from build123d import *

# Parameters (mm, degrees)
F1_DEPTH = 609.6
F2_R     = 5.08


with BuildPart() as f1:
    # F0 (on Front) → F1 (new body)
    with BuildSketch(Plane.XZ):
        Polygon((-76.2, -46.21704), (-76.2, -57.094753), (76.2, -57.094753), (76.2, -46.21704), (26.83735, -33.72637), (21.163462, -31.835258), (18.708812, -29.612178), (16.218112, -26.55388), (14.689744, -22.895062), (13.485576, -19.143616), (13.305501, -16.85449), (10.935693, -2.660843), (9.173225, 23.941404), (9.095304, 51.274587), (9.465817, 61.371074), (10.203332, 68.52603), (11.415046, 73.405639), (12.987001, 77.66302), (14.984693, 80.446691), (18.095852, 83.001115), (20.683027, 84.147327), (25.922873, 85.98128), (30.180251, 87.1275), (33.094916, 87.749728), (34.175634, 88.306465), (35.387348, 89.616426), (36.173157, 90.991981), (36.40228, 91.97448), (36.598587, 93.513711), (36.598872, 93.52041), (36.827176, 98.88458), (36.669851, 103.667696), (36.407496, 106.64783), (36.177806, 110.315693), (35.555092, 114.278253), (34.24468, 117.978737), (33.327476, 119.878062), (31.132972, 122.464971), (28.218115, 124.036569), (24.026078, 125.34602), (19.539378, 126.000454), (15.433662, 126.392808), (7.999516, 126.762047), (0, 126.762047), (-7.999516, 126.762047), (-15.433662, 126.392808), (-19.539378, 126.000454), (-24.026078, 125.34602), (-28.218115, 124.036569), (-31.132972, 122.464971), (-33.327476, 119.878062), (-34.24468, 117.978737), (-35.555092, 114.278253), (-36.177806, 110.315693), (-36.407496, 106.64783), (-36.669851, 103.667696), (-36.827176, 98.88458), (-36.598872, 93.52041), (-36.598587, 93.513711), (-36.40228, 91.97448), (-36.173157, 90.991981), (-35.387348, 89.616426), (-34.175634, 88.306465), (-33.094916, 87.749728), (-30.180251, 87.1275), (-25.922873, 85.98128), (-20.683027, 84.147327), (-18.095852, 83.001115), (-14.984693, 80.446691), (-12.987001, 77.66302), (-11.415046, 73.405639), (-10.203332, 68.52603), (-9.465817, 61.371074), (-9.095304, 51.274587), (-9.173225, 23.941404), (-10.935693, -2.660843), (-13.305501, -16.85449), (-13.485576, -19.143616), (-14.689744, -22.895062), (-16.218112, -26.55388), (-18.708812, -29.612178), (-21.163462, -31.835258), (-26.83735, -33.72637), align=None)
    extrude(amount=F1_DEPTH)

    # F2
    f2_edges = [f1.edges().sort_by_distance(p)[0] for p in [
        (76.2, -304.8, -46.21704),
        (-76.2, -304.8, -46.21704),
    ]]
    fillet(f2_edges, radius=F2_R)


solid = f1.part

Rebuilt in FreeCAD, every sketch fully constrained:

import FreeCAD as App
import Part
import Sketcher
Q = App.Units.Quantity


def edges_at(feature, points):
    """Names of the edges that pass closest to the given points."""
    edges = feature.Shape.Edges
    near = lambda p: min(range(len(edges)), key=lambda i: edges[i].distToShape(Part.Vertex(*p))[0])
    return sorted({f"Edge{near(p) + 1}" for p in points})

doc = App.newDocument("Part")
body = doc.addObject("PartDesign::Body", "Body")

sketch1 = body.newObject("Sketcher::SketchObject", "Sketch")
sketch1.AttachmentSupport = (doc.getObject("XZ_Plane"), [""])
sketch1.MapMode = "FlatFace"
sketch1.addGeometry([
    Part.LineSegment(App.Vector(-76.2, -46.21704, 0), App.Vector(-76.2, -57.094753, 0)),
    Part.LineSegment(App.Vector(-76.2, -57.094753, 0), App.Vector(76.2, -57.094753, 0)),
    Part.LineSegment(App.Vector(76.2, -57.094753, 0), App.Vector(76.2, -46.21704, 0)),
    Part.LineSegment(App.Vector(76.2, -46.21704, 0), App.Vector(26.83735, -33.72637, 0)),
    Part.LineSegment(App.Vector(26.83735, -33.72637, 0), App.Vector(21.163462, -31.835258, 0)),
    Part.LineSegment(App.Vector(21.163462, -31.835258, 0), App.Vector(18.708812, -29.612178, 0)),
    Part.LineSegment(App.Vector(18.708812, -29.612178, 0), App.Vector(16.218112, -26.55388, 0)),
    Part.LineSegment(App.Vector(16.218112, -26.55388, 0), App.Vector(14.689744, -22.895062, 0)),
    Part.LineSegment(App.Vector(14.689744, -22.895062, 0), App.Vector(13.485576, -19.143616, 0)),
    Part.LineSegment(App.Vector(13.485576, -19.143616, 0), App.Vector(13.305501, -16.85449, 0)),
    Part.LineSegment(App.Vector(13.305501, -16.85449, 0), App.Vector(10.935693, -2.660843, 0)),
    Part.LineSegment(App.Vector(10.935693, -2.660843, 0), App.Vector(9.173225, 23.941404, 0)),
    Part.LineSegment(App.Vector(9.173225, 23.941404, 0), App.Vector(9.095304, 51.274587, 0)),
    Part.LineSegment(App.Vector(9.095304, 51.274587, 0), App.Vector(9.465817, 61.371074, 0)),
    Part.LineSegment(App.Vector(9.465817, 61.371074, 0), App.Vector(10.203332, 68.52603, 0)),
    Part.LineSegment(App.Vector(10.203332, 68.52603, 0), App.Vector(11.415046, 73.405639, 0)),
    Part.LineSegment(App.Vector(11.415046, 73.405639, 0), App.Vector(12.987001, 77.66302, 0)),
    Part.LineSegment(App.Vector(12.987001, 77.66302, 0), App.Vector(14.984693, 80.446691, 0)),
    Part.LineSegment(App.Vector(14.984693, 80.446691, 0), App.Vector(18.095852, 83.001115, 0)),
    Part.LineSegment(App.Vector(18.095852, 83.001115, 0), App.Vector(20.683027, 84.147327, 0)),
    Part.LineSegment(App.Vector(20.683027, 84.147327, 0), App.Vector(25.922873, 85.98128, 0)),
    Part.LineSegment(App.Vector(25.922873, 85.98128, 0), App.Vector(30.180251, 87.1275, 0)),
    Part.LineSegment(App.Vector(30.180251, 87.1275, 0), App.Vector(33.094916, 87.749728, 0)),
    Part.LineSegment(App.Vector(33.094916, 87.749728, 0), App.Vector(34.175634, 88.306465, 0)),
    Part.LineSegment(App.Vector(34.175634, 88.306465, 0), App.Vector(35.387348, 89.616426, 0)),
    Part.LineSegment(App.Vector(35.387348, 89.616426, 0), App.Vector(36.173157, 90.991981, 0)),
    Part.LineSegment(App.Vector(36.173157, 90.991981, 0), App.Vector(36.40228, 91.97448, 0)),
    Part.LineSegment(App.Vector(36.40228, 91.97448, 0), App.Vector(36.598587, 93.513711, 0)),
    Part.LineSegment(App.Vector(36.598587, 93.513711, 0), App.Vector(36.598872, 93.52041, 0)),
    Part.LineSegment(App.Vector(36.598872, 93.52041, 0), App.Vector(36.827176, 98.88458, 0)),
    Part.LineSegment(App.Vector(36.827176, 98.88458, 0), App.Vector(36.669851, 103.667696, 0)),
    Part.LineSegment(App.Vector(36.669851, 103.667696, 0), App.Vector(36.407496, 106.64783, 0)),
    Part.LineSegment(App.Vector(36.407496, 106.64783, 0), App.Vector(36.177806, 110.315693, 0)),
    Part.LineSegment(App.Vector(36.177806, 110.315693, 0), App.Vector(35.555092, 114.278253, 0)),
    Part.LineSegment(App.Vector(35.555092, 114.278253, 0), App.Vector(34.24468, 117.978737, 0)),
    Part.LineSegment(App.Vector(34.24468, 117.978737, 0), App.Vector(33.327476, 119.878062, 0)),
    Part.LineSegment(App.Vector(33.327476, 119.878062, 0), App.Vector(31.132972, 122.464971, 0)),
    Part.LineSegment(App.Vector(31.132972, 122.464971, 0), App.Vector(28.218115, 124.036569, 0)),
    Part.LineSegment(App.Vector(28.218115, 124.036569, 0), App.Vector(24.026078, 125.34602, 0)),
    Part.LineSegment(App.Vector(24.026078, 125.34602, 0), App.Vector(19.539378, 126.000454, 0)),
    Part.LineSegment(App.Vector(19.539378, 126.000454, 0), App.Vector(15.433662, 126.392808, 0)),
    Part.LineSegment(App.Vector(15.433662, 126.392808, 0), App.Vector(7.999516, 126.762047, 0)),
    Part.LineSegment(App.Vector(7.999516, 126.762047, 0), App.Vector(-7.999516, 126.762047, 0)),
    Part.LineSegment(App.Vector(-7.999516, 126.762047, 0), App.Vector(-15.433662, 126.392808, 0)),
    Part.LineSegment(App.Vector(-15.433662, 126.392808, 0), App.Vector(-19.539378, 126.000454, 0)),
    Part.LineSegment(App.Vector(-19.539378, 126.000454, 0), App.Vector(-24.026078, 125.34602, 0)),
    Part.LineSegment(App.Vector(-24.026078, 125.34602, 0), App.Vector(-28.218115, 124.036569, 0)),
    Part.LineSegment(App.Vector(-28.218115, 124.036569, 0), App.Vector(-31.132972, 122.464971, 0)),
    Part.LineSegment(App.Vector(-31.132972, 122.464971, 0), App.Vector(-33.327476, 119.878062, 0)),
    Part.LineSegment(App.Vector(-33.327476, 119.878062, 0), App.Vector(-34.24468, 117.978737, 0)),
    Part.LineSegment(App.Vector(-34.24468, 117.978737, 0), App.Vector(-35.555092, 114.278253, 0)),
    Part.LineSegment(App.Vector(-35.555092, 114.278253, 0), App.Vector(-36.177806, 110.315693, 0)),
    Part.LineSegment(App.Vector(-36.177806, 110.315693, 0), App.Vector(-36.407496, 106.64783, 0)),
    Part.LineSegment(App.Vector(-36.407496, 106.64783, 0), App.Vector(-36.669851, 103.667696, 0)),
    Part.LineSegment(App.Vector(-36.669851, 103.667696, 0), App.Vector(-36.827176, 98.88458, 0)),
    Part.LineSegment(App.Vector(-36.827176, 98.88458, 0), App.Vector(-36.598872, 93.52041, 0)),
    Part.LineSegment(App.Vector(-36.598872, 93.52041, 0), App.Vector(-36.598587, 93.513711, 0)),
    Part.LineSegment(App.Vector(-36.598587, 93.513711, 0), App.Vector(-36.40228, 91.97448, 0)),
    Part.LineSegment(App.Vector(-36.40228, 91.97448, 0), App.Vector(-36.173157, 90.991981, 0)),
    Part.LineSegment(App.Vector(-36.173157, 90.991981, 0), App.Vector(-35.387348, 89.616426, 0)),
    Part.LineSegment(App.Vector(-35.387348, 89.616426, 0), App.Vector(-34.175634, 88.306465, 0)),
    Part.LineSegment(App.Vector(-34.175634, 88.306465, 0), App.Vector(-33.094916, 87.749728, 0)),
    Part.LineSegment(App.Vector(-33.094916, 87.749728, 0), App.Vector(-30.180251, 87.1275, 0)),
    Part.LineSegment(App.Vector(-30.180251, 87.1275, 0), App.Vector(-25.922873, 85.98128, 0)),
    Part.LineSegment(App.Vector(-25.922873, 85.98128, 0), App.Vector(-20.683027, 84.147327, 0)),
    Part.LineSegment(App.Vector(-20.683027, 84.147327, 0), App.Vector(-18.095852, 83.001115, 0)),
    Part.LineSegment(App.Vector(-18.095852, 83.001115, 0), App.Vector(-14.984693, 80.446691, 0)),
    Part.LineSegment(App.Vector(-14.984693, 80.446691, 0), App.Vector(-12.987001, 77.66302, 0)),
    Part.LineSegment(App.Vector(-12.987001, 77.66302, 0), App.Vector(-11.415046, 73.405639, 0)),
    Part.LineSegment(App.Vector(-11.415046, 73.405639, 0), App.Vector(-10.203332, 68.52603, 0)),
    Part.LineSegment(App.Vector(-10.203332, 68.52603, 0), App.Vector(-9.465817, 61.371074, 0)),
    Part.LineSegment(App.Vector(-9.465817, 61.371074, 0), App.Vector(-9.095304, 51.274587, 0)),
    Part.LineSegment(App.Vector(-9.095304, 51.274587, 0), App.Vector(-9.173225, 23.941404, 0)),
    Part.LineSegment(App.Vector(-9.173225, 23.941404, 0), App.Vector(-10.935693, -2.660843, 0)),
    Part.LineSegment(App.Vector(-10.935693, -2.660843, 0), App.Vector(-13.305501, -16.85449, 0)),
    Part.LineSegment(App.Vector(-13.305501, -16.85449, 0), App.Vector(-13.485576, -19.143616, 0)),
    Part.LineSegment(App.Vector(-13.485576, -19.143616, 0), App.Vector(-14.689744, -22.895062, 0)),
    Part.LineSegment(App.Vector(-14.689744, -22.895062, 0), App.Vector(-16.218112, -26.55388, 0)),
    Part.LineSegment(App.Vector(-16.218112, -26.55388, 0), App.Vector(-18.708812, -29.612178, 0)),
    Part.LineSegment(App.Vector(-18.708812, -29.612178, 0), App.Vector(-21.163462, -31.835258, 0)),
    Part.LineSegment(App.Vector(-21.163462, -31.835258, 0), App.Vector(-26.83735, -33.72637, 0)),
    Part.LineSegment(App.Vector(-26.83735, -33.72637, 0), App.Vector(-76.2, -46.21704, 0)),
], False)
sketch1.addConstraint([
    Sketcher.Constraint("Coincident", 0, 2, 1, 1),
    Sketcher.Constraint("Coincident", 1, 2, 2, 1),
    Sketcher.Constraint("Coincident", 2, 2, 3, 1),
    Sketcher.Constraint("Coincident", 3, 2, 4, 1),
    Sketcher.Constraint("Coincident", 4, 2, 5, 1),
    Sketcher.Constraint("Coincident", 5, 2, 6, 1),
    Sketcher.Constraint("Coincident", 6, 2, 7, 1),
    Sketcher.Constraint("Coincident", 7, 2, 8, 1),
    Sketcher.Constraint("Coincident", 8, 2, 9, 1),
    Sketcher.Constraint("Coincident", 9, 2, 10, 1),
    Sketcher.Constraint("Coincident", 10, 2, 11, 1),
    Sketcher.Constraint("Coincident", 11, 2, 12, 1),
    Sketcher.Constraint("Coincident", 12, 2, 13, 1),
    Sketcher.Constraint("Coincident", 13, 2, 14, 1),
    Sketcher.Constraint("Coincident", 14, 2, 15, 1),
    Sketcher.Constraint("Coincident", 15, 2, 16, 1),
    Sketcher.Constraint("Coincident", 16, 2, 17, 1),
    Sketcher.Constraint("Coincident", 17, 2, 18, 1),
    Sketcher.Constraint("Coincident", 18, 2, 19, 1),
    Sketcher.Constraint("Coincident", 19, 2, 20, 1),
    Sketcher.Constraint("Coincident", 20, 2, 21, 1),
    Sketcher.Constraint("Coincident", 21, 2, 22, 1),
    Sketcher.Constraint("Coincident", 22, 2, 23, 1),
    Sketcher.Constraint("Coincident", 23, 2, 24, 1),
    Sketcher.Constraint("Coincident", 24, 2, 25, 1),
    Sketcher.Constraint("Coincident", 25, 2, 26, 1),
    Sketcher.Constraint("Coincident", 26, 2, 27, 1),
    Sketcher.Constraint("Coincident", 27, 2, 28, 1),
    Sketcher.Constraint("Coincident", 28, 2, 29, 1),
    Sketcher.Constraint("Coincident", 29, 2, 30, 1),
    Sketcher.Constraint("Coincident", 30, 2, 31, 1),
    Sketcher.Constraint("Coincident", 31, 2, 32, 1),
    Sketcher.Constraint("Coincident", 32, 2, 33, 1),
    Sketcher.Constraint("Coincident", 33, 2, 34, 1),
    Sketcher.Constraint("Coincident", 34, 2, 35, 1),
    Sketcher.Constraint("Coincident", 35, 2, 36, 1),
    Sketcher.Constraint("Coincident", 36, 2, 37, 1),
    Sketcher.Constraint("Coincident", 37, 2, 38, 1),
    Sketcher.Constraint("Coincident", 38, 2, 39, 1),
    Sketcher.Constraint("Coincident", 39, 2, 40, 1),
    Sketcher.Constraint("Coincident", 40, 2, 41, 1),
    Sketcher.Constraint("Coincident", 41, 2, 42, 1),
    Sketcher.Constraint("Coincident", 42, 2, 43, 1),
    Sketcher.Constraint("Coincident", 43, 2, 44, 1),
    Sketcher.Constraint("Coincident", 44, 2, 45, 1),
    Sketcher.Constraint("Coincident", 45, 2, 46, 1),
    Sketcher.Constraint("Coincident", 46, 2, 47, 1),
    Sketcher.Constraint("Coincident", 47, 2, 48, 1),
    Sketcher.Constraint("Coincident", 48, 2, 49, 1),
    Sketcher.Constraint("Coincident", 49, 2, 50, 1),
    Sketcher.Constraint("Coincident", 50, 2, 51, 1),
    Sketcher.Constraint("Coincident", 51, 2, 52, 1),
    Sketcher.Constraint("Coincident", 52, 2, 53, 1),
    Sketcher.Constraint("Coincident", 53, 2, 54, 1),
    Sketcher.Constraint("Coincident", 54, 2, 55, 1),
    Sketcher.Constraint("Coincident", 55, 2, 56, 1),
    Sketcher.Constraint("Coincident", 56, 2, 57, 1),
    Sketcher.Constraint("Coincident", 57, 2, 58, 1),
    Sketcher.Constraint("Coincident", 58, 2, 59, 1),
    Sketcher.Constraint("Coincident", 59, 2, 60, 1),
    Sketcher.Constraint("Coincident", 60, 2, 61, 1),
    Sketcher.Constraint("Coincident", 61, 2, 62, 1),
    Sketcher.Constraint("Coincident", 62, 2, 63, 1),
    Sketcher.Constraint("Coincident", 63, 2, 64, 1),
    Sketcher.Constraint("Coincident", 64, 2, 65, 1),
    Sketcher.Constraint("Coincident", 65, 2, 66, 1),
    Sketcher.Constraint("Coincident", 66, 2, 67, 1),
    Sketcher.Constraint("Coincident", 67, 2, 68, 1),
    Sketcher.Constraint("Coincident", 68, 2, 69, 1),
    Sketcher.Constraint("Coincident", 69, 2, 70, 1),
    Sketcher.Constraint("Coincident", 70, 2, 71, 1),
    Sketcher.Constraint("Coincident", 71, 2, 72, 1),
    Sketcher.Constraint("Coincident", 72, 2, 73, 1),
    Sketcher.Constraint("Coincident", 73, 2, 74, 1),
    Sketcher.Constraint("Coincident", 74, 2, 75, 1),
    Sketcher.Constraint("Coincident", 75, 2, 76, 1),
    Sketcher.Constraint("Coincident", 76, 2, 77, 1),
    Sketcher.Constraint("Coincident", 77, 2, 78, 1),
    Sketcher.Constraint("Coincident", 78, 2, 79, 1),
    Sketcher.Constraint("Coincident", 79, 2, 80, 1),
    Sketcher.Constraint("Coincident", 80, 2, 81, 1),
    Sketcher.Constraint("Coincident", 81, 2, 0, 1),
    Sketcher.Constraint("Vertical", 0),
    Sketcher.Constraint("Horizontal", 1),
    Sketcher.Constraint("Vertical", 2),
    Sketcher.Constraint("Horizontal", 42),
    Sketcher.Constraint("Symmetric", 40, 2, 43, 2, -2),
    Sketcher.Constraint("Symmetric", 39, 2, 44, 2, -2),
    Sketcher.Constraint("Symmetric", 38, 2, 45, 2, -2),
    Sketcher.Constraint("Symmetric", 37, 2, 46, 2, -2),
    Sketcher.Constraint("Symmetric", 36, 2, 47, 2, -2),
    Sketcher.Constraint("Symmetric", 35, 2, 48, 2, -2),
    Sketcher.Constraint("Symmetric", 34, 2, 49, 2, -2),
    Sketcher.Constraint("Symmetric", 33, 2, 50, 2, -2),
    Sketcher.Constraint("Symmetric", 32, 2, 51, 2, -2),
    Sketcher.Constraint("Symmetric", 31, 2, 52, 2, -2),
    Sketcher.Constraint("Symmetric", 30, 2, 53, 2, -2),
    Sketcher.Constraint("Symmetric", 29, 2, 54, 2, -2),
    Sketcher.Constraint("Symmetric", 28, 2, 55, 2, -2),
    Sketcher.Constraint("Symmetric", 27, 2, 56, 2, -2),
    Sketcher.Constraint("Symmetric", 26, 2, 57, 2, -2),
    Sketcher.Constraint("Symmetric", 25, 2, 58, 2, -2),
    Sketcher.Constraint("Symmetric", 24, 2, 59, 2, -2),
    Sketcher.Constraint("Symmetric", 23, 2, 60, 2, -2),
    Sketcher.Constraint("Symmetric", 22, 2, 61, 2, -2),
    Sketcher.Constraint("Symmetric", 21, 2, 62, 2, -2),
    Sketcher.Constraint("Symmetric", 20, 2, 63, 2, -2),
    Sketcher.Constraint("Symmetric", 19, 2, 64, 2, -2),
    Sketcher.Constraint("Symmetric", 18, 2, 65, 2, -2),
    Sketcher.Constraint("Symmetric", 17, 2, 66, 2, -2),
    Sketcher.Constraint("Symmetric", 16, 2, 67, 2, -2),
    Sketcher.Constraint("Symmetric", 15, 2, 68, 2, -2),
    Sketcher.Constraint("Symmetric", 14, 2, 69, 2, -2),
    Sketcher.Constraint("Symmetric", 13, 2, 70, 2, -2),
    Sketcher.Constraint("Symmetric", 12, 2, 71, 2, -2),
    Sketcher.Constraint("Symmetric", 11, 2, 72, 2, -2),
    Sketcher.Constraint("Symmetric", 10, 2, 73, 2, -2),
    Sketcher.Constraint("Symmetric", 9, 2, 74, 2, -2),
    Sketcher.Constraint("Symmetric", 8, 2, 75, 2, -2),
    Sketcher.Constraint("Symmetric", 7, 2, 76, 2, -2),
    Sketcher.Constraint("Symmetric", 6, 2, 77, 2, -2),
    Sketcher.Constraint("Symmetric", 5, 2, 78, 2, -2),
    Sketcher.Constraint("Symmetric", 4, 2, 79, 2, -2),
    Sketcher.Constraint("Symmetric", 3, 2, 80, 2, -2),
    Sketcher.Constraint("Symmetric", 2, 2, 81, 2, -2),
    Sketcher.Constraint("Equal", 41, 43),
    Sketcher.Constraint("DistanceX", 1, 1, 1, 2, Q("6 in")),
    Sketcher.Constraint("Angle", 3, Q("165.800001 deg")),
    Sketcher.Constraint("Distance", 27, Q("1.551699 mm")),
    Sketcher.Constraint("DistanceX", -1, 1, 9, 2, Q("13.305501 mm")),
    Sketcher.Constraint("DistanceX", -1, 1, 16, 2, Q("12.987001 mm")),
    Sketcher.Constraint("DistanceY", -1, 1, 21, 2, Q("87.1275 mm")),
    Sketcher.Constraint("Distance", 8, Q("3.939971 mm")),
    Sketcher.Constraint("Distance", 10, Q("14.390122 mm")),
    Sketcher.Constraint("Distance", 16, Q("4.538319 mm")),
    Sketcher.Constraint("Distance", 17, Q("3.42631 mm")),
    Sketcher.Constraint("Distance", 20, Q("5.55152 mm")),
    Sketcher.Constraint("Distance", 21, Q("4.408978 mm")),
    Sketcher.Constraint("Distance", 26, Q("1.008862 mm")),
    Sketcher.Constraint("Distance", 31, Q("2.99166 mm")),
    Sketcher.Constraint("Distance", 33, Q("4.011191 mm")),
    Sketcher.Constraint("Distance", 38, Q("4.391792 mm")),
    Sketcher.Constraint("Distance", 40, Q("4.124421 mm")),
    Sketcher.Constraint("Distance", 41, Q("7.44331 mm")),
    Sketcher.Constraint("DistanceX", 42, 2, 42, 1, Q("15.999032 mm")),
    Sketcher.Constraint("DistanceY", 0, 2, 0, 1, Q("10.877713 mm")),
    Sketcher.Constraint("DistanceY", 2, 2, -1, 1, Q("46.21704 mm")),
    Sketcher.Constraint("DistanceX", -1, 1, 3, 2, Q("26.83735 mm")),
    Sketcher.Constraint("DistanceX", -1, 1, 4, 2, Q("21.163462 mm")),
    Sketcher.Constraint("DistanceY", 5, 2, -1, 1, Q("29.612178 mm")),
    Sketcher.Constraint("DistanceY", 6, 2, -1, 1, Q("26.55388 mm")),
    Sketcher.Constraint("DistanceY", 7, 2, -1, 1, Q("22.895062 mm")),
    Sketcher.Constraint("DistanceY", 9, 2, -1, 1, Q("16.85449 mm")),
    Sketcher.Constraint("DistanceY", -1, 1, 14, 2, Q("68.52603 mm")),
    Sketcher.Constraint("DistanceY", -1, 1, 15, 2, Q("73.405639 mm")),
    Sketcher.Constraint("DistanceY", -1, 1, 16, 2, Q("77.66302 mm")),
    Sketcher.Constraint("DistanceY", -1, 1, 17, 2, Q("80.446691 mm")),
    Sketcher.Constraint("DistanceY", -1, 1, 20, 2, Q("85.98128 mm")),
    Sketcher.Constraint("DistanceX", -1, 1, 21, 2, Q("30.180251 mm")),
    Sketcher.Constraint("DistanceY", -1, 1, 22, 2, Q("87.749728 mm")),
    Sketcher.Constraint("DistanceX", -1, 1, 24, 2, Q("35.387348 mm")),
    Sketcher.Constraint("DistanceY", -1, 1, 25, 2, Q("90.991981 mm")),
    Sketcher.Constraint("DistanceX", -1, 1, 26, 2, Q("36.40228 mm")),
    Sketcher.Constraint("DistanceY", -1, 1, 26, 2, Q("91.97448 mm")),
    Sketcher.Constraint("DistanceY", -1, 1, 27, 2, Q("93.513711 mm")),
    Sketcher.Constraint("DistanceY", -1, 1, 28, 2, Q("93.52041 mm")),
    Sketcher.Constraint("DistanceY", -1, 1, 29, 2, Q("98.88458 mm")),
    Sketcher.Constraint("DistanceX", -1, 1, 30, 2, Q("36.669851 mm")),
    Sketcher.Constraint("DistanceY", -1, 1, 31, 2, Q("106.64783 mm")),
    Sketcher.Constraint("DistanceX", -1, 1, 34, 2, Q("34.24468 mm")),
    Sketcher.Constraint("DistanceY", -1, 1, 35, 2, Q("119.878062 mm")),
    Sketcher.Constraint("DistanceX", -1, 1, 36, 2, Q("31.132972 mm")),
    Sketcher.Constraint("DistanceY", -1, 1, 36, 2, Q("122.464971 mm")),
    Sketcher.Constraint("DistanceY", -1, 1, 37, 2, Q("124.036569 mm")),
    Sketcher.Constraint("DistanceY", -1, 1, 38, 2, Q("125.34602 mm")),
    Sketcher.Constraint("DistanceY", -1, 1, 40, 2, Q("126.392808 mm")),
    Sketcher.Constraint("Distance", 4, Q("5.980745 mm")),
    Sketcher.Constraint("Distance", 5, Q("3.311705 mm")),
    Sketcher.Constraint("Distance", 6, Q("3.944208 mm")),
    Sketcher.Constraint("Distance", 7, Q("3.965206 mm")),
    Sketcher.Constraint("Distance", 9, Q("2.296198 mm")),
    Sketcher.Constraint("Distance", 11, Q("26.660567 mm")),
    Sketcher.Constraint("Distance", 12, Q("27.333294 mm")),
    Sketcher.Constraint("Distance", 13, Q("10.103283 mm")),
    Sketcher.Constraint("Distance", 14, Q("7.192866 mm")),
    Sketcher.Constraint("Distance", 15, Q("5.027806 mm")),
    Sketcher.Constraint("Distance", 18, Q("4.025468 mm")),
    Sketcher.Constraint("Distance", 19, Q("2.829713 mm")),
    Sketcher.Constraint("Distance", 22, Q("2.980342 mm")),
    Sketcher.Constraint("Distance", 23, Q("1.215692 mm")),
    Sketcher.Constraint("Distance", 24, Q("1.784446 mm")),
    Sketcher.Constraint("Distance", 25, Q("1.584187 mm")),
    Sketcher.Constraint("Distance", 28, Q("0.006705 mm")),
    Sketcher.Constraint("Distance", 29, Q("5.369026 mm")),
    Sketcher.Constraint("Distance", 30, Q("4.785703 mm")),
    Sketcher.Constraint("Distance", 32, Q("3.675048 mm")),
    Sketcher.Constraint("Distance", 34, Q("3.925654 mm")),
    Sketcher.Constraint("Distance", 35, Q("2.109194 mm")),
    Sketcher.Constraint("Distance", 36, Q("3.392336 mm")),
    Sketcher.Constraint("Distance", 37, Q("3.311542 mm")),
    Sketcher.Constraint("Distance", 39, Q("4.534177 mm")),
    Sketcher.Constraint("DistanceX", -1, 1, 10, 2, Q("10.935693 mm")),
    Sketcher.Constraint("DistanceX", -1, 1, 11, 2, Q("9.173225 mm")),
    Sketcher.Constraint("DistanceX", -1, 1, 12, 2, Q("9.095304 mm")),
    Sketcher.Constraint("DistanceX", -1, 1, 18, 2, Q("18.095852 mm")),
    Sketcher.Constraint("DistanceX", -1, 1, 32, 2, Q("36.177806 mm")),
    Sketcher.Constraint("DistanceX", -1, 1, 39, 2, Q("19.539378 mm")),
])
pad1 = body.newObject("PartDesign::Pad", "Pad")
pad1.Profile = sketch1
pad1.Length = Q("24 in")
doc.recompute()

fillet = body.newObject("PartDesign::Fillet", "Fillet")
fillet.Base = (pad1, edges_at(pad1, [(76.2, -304.8, -46.217), (-76.2, -304.8, -46.217)]))
fillet.Radius = Q("0.2 in")

doc.recompute()
